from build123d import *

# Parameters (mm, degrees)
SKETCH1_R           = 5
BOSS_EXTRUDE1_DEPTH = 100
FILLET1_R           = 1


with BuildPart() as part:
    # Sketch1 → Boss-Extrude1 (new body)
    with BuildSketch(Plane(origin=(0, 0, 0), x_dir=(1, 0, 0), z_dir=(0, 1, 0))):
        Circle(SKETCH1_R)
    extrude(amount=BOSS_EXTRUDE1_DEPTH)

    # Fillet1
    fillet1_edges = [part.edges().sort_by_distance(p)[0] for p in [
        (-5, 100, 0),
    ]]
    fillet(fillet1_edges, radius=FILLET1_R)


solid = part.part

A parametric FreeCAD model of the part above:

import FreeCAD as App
import Part
import Sketcher

V = App.Vector


def edges_at(feature, points):
    """Names of the edges that pass closest to the given points."""
    edges = feature.Shape.Edges
    near = lambda p: min(range(len(edges)), key=lambda i: edges[i].distToShape(Part.Vertex(*p))[0])
    return sorted({f"Edge{near(p) + 1}" for p in points})

doc = App.newDocument("Part")
body = doc.addObject("PartDesign::Body", "Body")

# Sketch on XZ plane
sketch1 = body.newObject("Sketcher::SketchObject", "Sketch")
sketch1.AttachmentSupport = (doc.getObject("XZ_Plane"), [""])
sketch1.MapMode = "FlatFace"
sketch1.addGeometry(Part.Circle(V(0, 0, 0), V(0, 0, 1), 5), False)
sketch1.addConstraint([
    Sketcher.Constraint("Coincident", 0, 3, -1, 1),
    Sketcher.Constraint("Diameter", 0, 10.0),
])
pad1 = body.newObject("PartDesign::Pad", "Pad")
pad1.Profile = sketch1
pad1.Length = 100
pad1.Reversed = True
doc.recompute()

fillet = body.newObject("PartDesign::Fillet", "Fillet")
fillet.Base = (pad1, edges_at(pad1, [(-5, 100, 0)]))
fillet.Radius = 1

doc.recompute()
